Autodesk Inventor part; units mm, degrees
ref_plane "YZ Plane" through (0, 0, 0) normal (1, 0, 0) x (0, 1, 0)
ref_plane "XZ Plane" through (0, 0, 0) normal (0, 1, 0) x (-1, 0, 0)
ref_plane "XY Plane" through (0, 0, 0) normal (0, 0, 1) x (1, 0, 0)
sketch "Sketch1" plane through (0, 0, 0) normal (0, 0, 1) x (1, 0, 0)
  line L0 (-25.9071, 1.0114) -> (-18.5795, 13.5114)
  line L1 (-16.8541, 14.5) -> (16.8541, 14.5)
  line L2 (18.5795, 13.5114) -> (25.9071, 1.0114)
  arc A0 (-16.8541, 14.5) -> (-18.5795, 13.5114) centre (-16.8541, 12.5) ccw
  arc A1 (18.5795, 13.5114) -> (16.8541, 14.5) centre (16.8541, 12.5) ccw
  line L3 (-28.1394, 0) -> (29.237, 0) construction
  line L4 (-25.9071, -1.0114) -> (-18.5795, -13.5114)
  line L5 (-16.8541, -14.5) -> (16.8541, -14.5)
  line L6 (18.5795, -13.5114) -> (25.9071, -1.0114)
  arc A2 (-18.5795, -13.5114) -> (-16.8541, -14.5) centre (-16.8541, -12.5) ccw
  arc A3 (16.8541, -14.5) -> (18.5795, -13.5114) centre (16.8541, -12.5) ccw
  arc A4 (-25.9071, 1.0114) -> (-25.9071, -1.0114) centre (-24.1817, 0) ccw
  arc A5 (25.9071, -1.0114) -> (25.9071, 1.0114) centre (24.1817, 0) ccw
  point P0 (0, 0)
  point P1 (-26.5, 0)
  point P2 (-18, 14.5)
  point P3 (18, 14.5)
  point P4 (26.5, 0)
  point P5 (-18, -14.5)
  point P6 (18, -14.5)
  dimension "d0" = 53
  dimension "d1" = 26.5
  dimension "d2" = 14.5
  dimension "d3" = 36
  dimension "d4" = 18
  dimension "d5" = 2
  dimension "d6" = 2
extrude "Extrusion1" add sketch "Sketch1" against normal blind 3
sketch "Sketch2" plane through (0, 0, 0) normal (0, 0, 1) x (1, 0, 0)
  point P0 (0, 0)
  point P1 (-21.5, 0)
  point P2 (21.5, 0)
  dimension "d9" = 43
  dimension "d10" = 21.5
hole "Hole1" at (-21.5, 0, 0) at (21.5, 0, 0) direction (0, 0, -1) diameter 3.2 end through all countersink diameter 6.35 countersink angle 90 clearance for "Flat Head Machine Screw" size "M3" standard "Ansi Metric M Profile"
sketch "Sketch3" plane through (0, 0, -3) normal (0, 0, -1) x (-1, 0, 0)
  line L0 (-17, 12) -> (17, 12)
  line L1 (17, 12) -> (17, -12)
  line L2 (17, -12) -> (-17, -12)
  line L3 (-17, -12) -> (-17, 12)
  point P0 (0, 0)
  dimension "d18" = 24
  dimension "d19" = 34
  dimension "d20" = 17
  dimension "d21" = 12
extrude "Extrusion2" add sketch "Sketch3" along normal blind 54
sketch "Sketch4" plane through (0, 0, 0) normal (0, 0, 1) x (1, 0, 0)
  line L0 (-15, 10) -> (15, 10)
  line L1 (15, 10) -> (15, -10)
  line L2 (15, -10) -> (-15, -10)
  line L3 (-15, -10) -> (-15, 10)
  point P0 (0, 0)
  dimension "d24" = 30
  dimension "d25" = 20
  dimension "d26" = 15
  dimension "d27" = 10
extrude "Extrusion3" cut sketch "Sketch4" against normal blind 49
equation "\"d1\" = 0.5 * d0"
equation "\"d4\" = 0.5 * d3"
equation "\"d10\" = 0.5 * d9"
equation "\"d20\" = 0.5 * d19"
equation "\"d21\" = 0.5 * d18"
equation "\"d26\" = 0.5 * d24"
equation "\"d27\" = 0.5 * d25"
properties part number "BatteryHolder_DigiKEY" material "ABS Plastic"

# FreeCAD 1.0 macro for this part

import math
import FreeCAD as App
import Part
import Sketcher
Q = App.Units.Quantity

doc = App.newDocument("Part")
body = doc.addObject("PartDesign::Body", "Body")

sketch1 = doc.addObject("Sketcher::SketchObject", "Sketch")
body.addObject(sketch1)
sketch1.AttachmentSupport = (doc.XY_Plane, [""])
sketch1.MapMode = "FlatFace"
sketch1.addGeometry(Part.LineSegment(App.Vector(-18.6, 13.5, 0), App.Vector(-25.9, 1, 0)), False)
sketch1.addGeometry(Part.ArcOfCircle(Part.Circle(App.Vector(-24.2, 0, 0), App.Vector(0, 0, 1), 2), math.radians(150), math.radians(210)), False)
sketch1.addGeometry(Part.LineSegment(App.Vector(-25.9, -1, 0), App.Vector(-18.6, -13.5, 0)), False)
sketch1.addGeometry(Part.ArcOfCircle(Part.Circle(App.Vector(-16.9, -12.5, 0), App.Vector(0, 0, 1), 2), math.radians(-150), math.radians(-90)), False)
sketch1.addGeometry(Part.LineSegment(App.Vector(-16.9, -14.5, 0), App.Vector(16.9, -14.5, 0)), False)
sketch1.addGeometry(Part.ArcOfCircle(Part.Circle(App.Vector(16.9, -12.5, 0), App.Vector(0, 0, 1), 2), math.radians(-90), math.radians(-30)), False)
sketch1.addGeometry(Part.LineSegment(App.Vector(18.6, -13.5, 0), App.Vector(25.9, -1, 0)), False)
sketch1.addGeometry(Part.ArcOfCircle(Part.Circle(App.Vector(24.2, 0, 0), App.Vector(0, 0, 1), 2), math.radians(-30), math.radians(30)), False)
sketch1.addGeometry(Part.LineSegment(App.Vector(25.9, 1, 0), App.Vector(18.6, 13.5, 0)), False)
sketch1.addGeometry(Part.ArcOfCircle(Part.Circle(App.Vector(16.9, 12.5, 0), App.Vector(0, 0, 1), 2), math.radians(30), math.radians(90)), False)
sketch1.addGeometry(Part.LineSegment(App.Vector(16.9, 14.5, 0), App.Vector(-16.9, 14.5, 0)), False)
sketch1.addGeometry(Part.ArcOfCircle(Part.Circle(App.Vector(-16.9, 12.5, 0), App.Vector(0, 0, 1), 2), math.radians(90), math.radians(150)), False)
sketch1.addConstraint(Sketcher.Constraint("Tangent", 0, 2, 1, 1))
sketch1.addConstraint(Sketcher.Constraint("Tangent", 1, 2, 2, 1))
sketch1.addConstraint(Sketcher.Constraint("Tangent", 2, 2, 3, 1))
sketch1.addConstraint(Sketcher.Constraint("Tangent", 3, 2, 4, 1))
sketch1.addConstraint(Sketcher.Constraint("Tangent", 4, 2, 5, 1))
sketch1.addConstraint(Sketcher.Constraint("Tangent", 5, 2, 6, 1))
sketch1.addConstraint(Sketcher.Constraint("Tangent", 6, 2, 7, 1))
sketch1.addConstraint(Sketcher.Constraint("Tangent", 7, 2, 8, 1))
sketch1.addConstraint(Sketcher.Constraint("Tangent", 8, 2, 9, 1))
sketch1.addConstraint(Sketcher.Constraint("Tangent", 9, 2, 10, 1))
sketch1.addConstraint(Sketcher.Constraint("Tangent", 10, 2, 11, 1))
sketch1.addConstraint(Sketcher.Constraint("Tangent", 11, 2, 0, 1))
sketch1.addConstraint(Sketcher.Constraint("Horizontal", 4))
sketch1.addConstraint(Sketcher.Constraint("Horizontal", 10))
sketch1.addConstraint(Sketcher.Constraint("Equal", 1, 3))
sketch1.addConstraint(Sketcher.Constraint("Equal", 3, 5))
sketch1.addConstraint(Sketcher.Constraint("Equal", 5, 7))
sketch1.addConstraint(Sketcher.Constraint("Equal", 7, 9))
sketch1.addConstraint(Sketcher.Constraint("Equal", 9, 11))
sketch1.addConstraint(Sketcher.Constraint("Symmetric", 1, 3, 7, 3, -1, 1))
sketch1.addConstraint(Sketcher.Constraint("Symmetric", 3, 3, 9, 3, -1, 1))
sketch1.addConstraint(Sketcher.Constraint("Symmetric", 2, 2, 5, 2, -2))
sketch1.addConstraint(Sketcher.Constraint("Parallel", 0, 6))
sketch1.addConstraint(Sketcher.Constraint("Radius", 1, 2.0))
sketch1.addConstraint(Sketcher.Constraint("DistanceY", 3, 2, -1, 1, 14.5))
sketch1.addConstraint(Sketcher.Constraint("Angle", 0, Q("-120.3792 deg")))
sketch1.addConstraint(Sketcher.Constraint("DistanceX", 4, 1, 4, 2, 33.7082))
pad1 = doc.addObject("PartDesign::Pad", "Pad")
body.addObject(pad1)
pad1.Profile = sketch1
pad1.Length = 3
pad1.Reversed = True

sketch2 = doc.addObject("Sketcher::SketchObject", "Sketch001")
body.addObject(sketch2)
sketch2.AttachmentSupport = (doc.XY_Plane, [""])
sketch2.MapMode = "FlatFace"
sketch2.addGeometry(Part.Circle(App.Vector(-21.5, 0, 0), App.Vector(0, 0, 1), 1.6), False)
sketch2.addGeometry(Part.Circle(App.Vector(21.5, 0, 0), App.Vector(0, 0, 1), 1.6), False)
sketch2.addConstraint(Sketcher.Constraint("Equal", 0, 1))
sketch2.addConstraint(Sketcher.Constraint("Symmetric", 0, 3, 1, 3, -1, 1))
sketch2.addConstraint(Sketcher.Constraint("PointOnObject", 0, 3, -1))
sketch2.addConstraint(Sketcher.Constraint("Diameter", 0, 3.2))
sketch2.addConstraint(Sketcher.Constraint("DistanceX", 0, 3, 1, 3, 43.0))
doc.recompute()
hole = doc.addObject("PartDesign::Hole", "Hole")
body.addObject(hole)
hole.Profile = sketch2
hole.ThreadType = "None"
hole.Diameter = 3.2
hole.DepthType = "ThroughAll"
hole.HoleCutType = "Countersink"
hole.HoleCutDiameter = 6.35
hole.HoleCutCountersinkAngle = 90

sketch3 = doc.addObject("Sketcher::SketchObject", "Sketch002")
body.addObject(sketch3)
sketch3.AttachmentSupport = (doc.XY_Plane, [""])
sketch3.MapMode = "FlatFace"
sketch3.AttachmentOffset = App.Placement(App.Vector(0, 0, -3), App.Rotation())
sketch3.addGeometry(Part.LineSegment(App.Vector(-17, 12, 0), App.Vector(17, 12, 0)), False)
sketch3.addGeometry(Part.LineSegment(App.Vector(17, 12, 0), App.Vector(17, -12, 0)), False)
sketch3.addGeometry(Part.LineSegment(App.Vector(17, -12, 0), App.Vector(-17, -12, 0)), False)
sketch3.addGeometry(Part.LineSegment(App.Vector(-17, -12, 0), App.Vector(-17, 12, 0)), False)
sketch3.addConstraint(Sketcher.Constraint("Coincident", 0, 2, 1, 1))
sketch3.addConstraint(Sketcher.Constraint("Coincident", 1, 2, 2, 1))
sketch3.addConstraint(Sketcher.Constraint("Coincident", 2, 2, 3, 1))
sketch3.addConstraint(Sketcher.Constraint("Coincident", 3, 2, 0, 1))
sketch3.addConstraint(Sketcher.Constraint("Horizontal", 0))
sketch3.addConstraint(Sketcher.Constraint("Vertical", 1))
sketch3.addConstraint(Sketcher.Constraint("Horizontal", 2))
sketch3.addConstraint(Sketcher.Constraint("Vertical", 3))
sketch3.addConstraint(Sketcher.Constraint("Symmetric", 0, 2, 2, 2, -1, 1))
sketch3.addConstraint(Sketcher.Constraint("DistanceX", 0, 1, 0, 2, 34.0))
sketch3.addConstraint(Sketcher.Constraint("DistanceY", 1, 2, 1, 1, 24.0))
pad2 = doc.addObject("PartDesign::Pad", "Pad001")
body.addObject(pad2)
pad2.Profile = sketch3
pad2.Length = 54
pad2.Reversed = True

sketch4 = doc.addObject("Sketcher::SketchObject", "Sketch003")
body.addObject(sketch4)
sketch4.AttachmentSupport = (doc.XY_Plane, [""])
sketch4.MapMode = "FlatFace"
sketch4.addGeometry(Part.LineSegment(App.Vector(15, 10, 0), App.Vector(-15, 10, 0)), False)
sketch4.addGeometry(Part.LineSegment(App.Vector(-15, 10, 0), App.Vector(-15, -10, 0)), False)
sketch4.addGeometry(Part.LineSegment(App.Vector(-15, -10, 0), App.Vector(15, -10, 0)), False)
sketch4.addGeometry(Part.LineSegment(App.Vector(15, -10, 0), App.Vector(15, 10, 0)), False)
sketch4.addConstraint(Sketcher.Constraint("Coincident", 0, 2, 1, 1))
sketch4.addConstraint(Sketcher.Constraint("Coincident", 1, 2, 2, 1))
sketch4.addConstraint(Sketcher.Constraint("Coincident", 2, 2, 3, 1))
sketch4.addConstraint(Sketcher.Constraint("Coincident", 3, 2, 0, 1))
sketch4.addConstraint(Sketcher.Constraint("Horizontal", 0))
sketch4.addConstraint(Sketcher.Constraint("Vertical", 1))
sketch4.addConstraint(Sketcher.Constraint("Horizontal", 2))
sketch4.addConstraint(Sketcher.Constraint("Vertical", 3))
sketch4.addConstraint(Sketcher.Constraint("Symmetric", 0, 2, 2, 2, -1, 1))
sketch4.addConstraint(Sketcher.Constraint("DistanceX", 0, 2, 0, 1, 30.0))
sketch4.addConstraint(Sketcher.Constraint("DistanceY", 1, 2, 1, 1, 20.0))
pocket1 = doc.addObject("PartDesign::Pocket", "Pocket")
body.addObject(pocket1)
pocket1.Profile = sketch4
pocket1.Length = 49

doc.recompute()
